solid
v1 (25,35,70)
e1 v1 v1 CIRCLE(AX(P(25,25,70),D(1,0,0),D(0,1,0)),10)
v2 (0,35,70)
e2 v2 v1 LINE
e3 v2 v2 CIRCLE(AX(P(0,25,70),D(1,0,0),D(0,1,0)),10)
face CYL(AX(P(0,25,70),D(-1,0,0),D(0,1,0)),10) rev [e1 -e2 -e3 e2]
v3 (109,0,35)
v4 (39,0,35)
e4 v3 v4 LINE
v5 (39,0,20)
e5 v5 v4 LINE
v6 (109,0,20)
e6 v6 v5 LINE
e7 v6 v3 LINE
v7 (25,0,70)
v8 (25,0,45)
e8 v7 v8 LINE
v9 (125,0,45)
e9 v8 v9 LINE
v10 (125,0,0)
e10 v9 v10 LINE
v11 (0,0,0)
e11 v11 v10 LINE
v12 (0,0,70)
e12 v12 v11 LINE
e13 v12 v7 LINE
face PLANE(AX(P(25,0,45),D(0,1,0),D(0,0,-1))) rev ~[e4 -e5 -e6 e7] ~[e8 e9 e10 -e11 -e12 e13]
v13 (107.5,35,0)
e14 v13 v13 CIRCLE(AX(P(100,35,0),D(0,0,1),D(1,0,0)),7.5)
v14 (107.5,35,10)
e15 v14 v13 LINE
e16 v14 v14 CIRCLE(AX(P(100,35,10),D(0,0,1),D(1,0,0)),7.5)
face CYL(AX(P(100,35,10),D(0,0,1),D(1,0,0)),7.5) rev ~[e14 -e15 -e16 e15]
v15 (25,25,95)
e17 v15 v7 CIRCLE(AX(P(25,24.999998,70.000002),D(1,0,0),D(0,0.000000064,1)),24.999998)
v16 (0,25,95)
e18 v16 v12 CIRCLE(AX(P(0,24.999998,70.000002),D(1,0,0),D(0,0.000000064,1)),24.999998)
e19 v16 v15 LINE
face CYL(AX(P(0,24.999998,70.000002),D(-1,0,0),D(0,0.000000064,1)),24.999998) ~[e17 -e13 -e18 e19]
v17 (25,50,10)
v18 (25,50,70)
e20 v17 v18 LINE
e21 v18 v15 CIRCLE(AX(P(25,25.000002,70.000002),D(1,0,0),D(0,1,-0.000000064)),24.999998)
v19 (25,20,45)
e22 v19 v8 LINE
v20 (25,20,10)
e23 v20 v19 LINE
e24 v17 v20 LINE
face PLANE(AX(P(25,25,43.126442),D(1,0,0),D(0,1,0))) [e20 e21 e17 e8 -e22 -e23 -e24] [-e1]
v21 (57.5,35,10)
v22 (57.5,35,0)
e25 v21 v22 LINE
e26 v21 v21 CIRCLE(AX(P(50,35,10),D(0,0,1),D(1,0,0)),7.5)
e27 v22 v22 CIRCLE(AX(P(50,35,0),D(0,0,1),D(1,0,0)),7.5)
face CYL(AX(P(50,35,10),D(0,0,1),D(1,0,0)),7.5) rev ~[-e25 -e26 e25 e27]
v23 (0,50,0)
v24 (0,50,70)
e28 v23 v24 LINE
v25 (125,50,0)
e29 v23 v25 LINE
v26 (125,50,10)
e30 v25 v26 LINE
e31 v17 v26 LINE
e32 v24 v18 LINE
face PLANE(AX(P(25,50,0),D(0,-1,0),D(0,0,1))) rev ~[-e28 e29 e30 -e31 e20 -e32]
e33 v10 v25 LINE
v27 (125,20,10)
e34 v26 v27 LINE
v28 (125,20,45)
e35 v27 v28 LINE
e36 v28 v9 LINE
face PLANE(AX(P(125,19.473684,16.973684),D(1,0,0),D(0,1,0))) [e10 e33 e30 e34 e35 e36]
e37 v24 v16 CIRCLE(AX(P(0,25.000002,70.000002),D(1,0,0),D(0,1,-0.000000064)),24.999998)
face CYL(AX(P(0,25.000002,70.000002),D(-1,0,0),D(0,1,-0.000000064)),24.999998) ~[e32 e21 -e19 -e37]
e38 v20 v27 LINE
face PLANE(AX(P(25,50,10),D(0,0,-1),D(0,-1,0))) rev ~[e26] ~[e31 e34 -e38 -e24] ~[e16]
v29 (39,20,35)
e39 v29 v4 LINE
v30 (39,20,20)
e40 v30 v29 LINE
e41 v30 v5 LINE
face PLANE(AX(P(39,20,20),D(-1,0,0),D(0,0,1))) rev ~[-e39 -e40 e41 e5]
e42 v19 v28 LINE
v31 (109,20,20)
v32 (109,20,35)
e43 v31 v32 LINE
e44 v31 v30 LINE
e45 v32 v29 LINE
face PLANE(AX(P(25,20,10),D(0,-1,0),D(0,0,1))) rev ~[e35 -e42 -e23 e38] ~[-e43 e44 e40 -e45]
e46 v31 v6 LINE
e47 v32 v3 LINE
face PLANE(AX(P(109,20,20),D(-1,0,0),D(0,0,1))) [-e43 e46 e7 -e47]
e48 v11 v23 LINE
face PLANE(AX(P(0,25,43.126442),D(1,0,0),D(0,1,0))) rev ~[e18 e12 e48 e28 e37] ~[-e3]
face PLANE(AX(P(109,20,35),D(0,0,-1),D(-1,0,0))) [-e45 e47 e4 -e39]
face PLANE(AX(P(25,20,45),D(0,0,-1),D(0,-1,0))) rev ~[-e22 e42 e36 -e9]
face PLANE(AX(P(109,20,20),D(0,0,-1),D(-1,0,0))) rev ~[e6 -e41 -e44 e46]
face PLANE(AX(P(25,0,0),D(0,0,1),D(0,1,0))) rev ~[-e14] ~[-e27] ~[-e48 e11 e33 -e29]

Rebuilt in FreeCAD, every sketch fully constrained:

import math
import FreeCAD as App
import Part
import Sketcher

V = App.Vector
Q = App.Units.Quantity

doc = App.newDocument("Part")
params = doc.addObject("Spreadsheet::Sheet", "Params")
for row, (alias, value) in enumerate([
    ("sketch1_diameter", "20 mm"),
    ("sketch1_radius", "24.999998 mm"),
    ("sketch1_height", "70 mm"),
    ("pad1_length", "25 mm"),
    ("sketch2_width", "50 mm"),
    ("sketch2_width2", "30 mm"),
    ("sketch2_height", "45 mm"),
    ("sketch2_height2", "10 mm"),
    ("pad2_length", "100 mm"),
    ("sketch3_width", "70 mm"),
    ("sketch3_height", "15 mm"),
    ("pocket1_length", "20 mm"),
    ("sketch4_diameter", "15 mm"),
    ("pocket2_length", "10 mm"),
], start=1):
    params.set(f"A{row}", alias)
    params.set(f"B{row}", "=" + value)
    params.setAlias(f"B{row}", alias)

body = doc.addObject("PartDesign::Body", "Body")

# Sketch on YZ plane
sketch1 = doc.addObject("Sketcher::SketchObject", "Sketch")
body.addObject(sketch1)
sketch1.AttachmentSupport = (doc.YZ_Plane, [""])
sketch1.MapMode = "FlatFace"
sketch1.addGeometry([
    Part.LineSegment(V(0, 70, 0), V(0, 0, 0)),  # 0
    Part.LineSegment(V(0, 0, 0), V(50, 0, 0)),  # 1
    Part.LineSegment(V(50, 0, 0), V(50, 70, 0)),  # 2
    Part.ArcOfCircle(Part.Circle(V(25, 70, 0), V(0, 0, 1), 25), math.radians(0), math.radians(90)),  # 3
    Part.ArcOfCircle(Part.Circle(V(25, 70, 0), V(0, 0, 1), 25), math.radians(90), math.radians(180)),  # 4
    Part.Circle(V(25, 70, 0), V(0, 0, 1), 10),  # 5
], False)
sketch1.addConstraint([
    Sketcher.Constraint("Coincident", 0, 2, 1, 1),
    Sketcher.Constraint("Coincident", 1, 2, 2, 1),
    Sketcher.Constraint("Tangent", 2, 2, 3, 1),
    Sketcher.Constraint("Tangent", 3, 2, 4, 1),
    Sketcher.Constraint("Tangent", 4, 2, 0, 1),
    Sketcher.Constraint("Vertical", 0),
    Sketcher.Constraint("Horizontal", 1),
    Sketcher.Constraint("Vertical", 2),
    Sketcher.Constraint("Coincident", 0, 2, -1, 1),
    Sketcher.Constraint("Coincident", 5, 3, 3, 3),
    Sketcher.Constraint("Equal", 3, 4),
    Sketcher.Constraint("Vertical", 5, 3, 3, 2),
    Sketcher.Constraint("Diameter", 5, Q("20 mm")),
    Sketcher.Constraint("Radius", 3, Q("24.999998 mm")),
    Sketcher.Constraint("DistanceY", 0, 2, 0, 1, Q("70 mm")),
])
sketch1.setExpression("Constraints[12]", "Params.sketch1_diameter")
sketch1.setExpression("Constraints[13]", "Params.sketch1_radius")
sketch1.setExpression("Constraints[14]", "Params.sketch1_height")
pad1 = doc.addObject("PartDesign::Pad", "Pad")
body.addObject(pad1)
pad1.Profile = sketch1
pad1.setExpression("Length", "Params.pad1_length")

# Sketch on YZ plane
sketch2 = doc.addObject("Sketcher::SketchObject", "Sketch001")
body.addObject(sketch2)
sketch2.AttachmentSupport = (doc.YZ_Plane, [""])
sketch2.MapMode = "FlatFace"
sketch2.AttachmentOffset = App.Placement(V(0, 0, 25), App.Rotation())
sketch2.addGeometry([
    Part.LineSegment(V(0, 45, 0), V(0, 0, 0)),  # 0
    Part.LineSegment(V(0, 0, 0), V(50, 0, 0)),  # 1
    Part.LineSegment(V(50, 0, 0), V(50, 10, 0)),  # 2
    Part.LineSegment(V(50, 10, 0), V(20, 10, 0)),  # 3
    Part.LineSegment(V(20, 10, 0), V(20, 45, 0)),  # 4
    Part.LineSegment(V(20, 45, 0), V(0, 45, 0)),  # 5
], False)
sketch2.addConstraint([
    Sketcher.Constraint("Coincident", 0, 2, 1, 1),
    Sketcher.Constraint("Coincident", 1, 2, 2, 1),
    Sketcher.Constraint("Coincident", 2, 2, 3, 1),
    Sketcher.Constraint("Coincident", 3, 2, 4, 1),
    Sketcher.Constraint("Coincident", 4, 2, 5, 1),
    Sketcher.Constraint("Coincident", 5, 2, 0, 1),
    Sketcher.Constraint("Vertical", 0),
    Sketcher.Constraint("Horizontal", 1),
    Sketcher.Constraint("Vertical", 2),
    Sketcher.Constraint("Horizontal", 3),
    Sketcher.Constraint("Vertical", 4),
    Sketcher.Constraint("Horizontal", 5),
    Sketcher.Constraint("Coincident", 0, 2, -1, 1),
    Sketcher.Constraint("DistanceX", 1, 1, 1, 2, Q("50 mm")),
    Sketcher.Constraint("DistanceX", 3, 2, 3, 1, Q("30 mm")),
    Sketcher.Constraint("DistanceY", 0, 2, 0, 1, Q("45 mm")),
    Sketcher.Constraint("DistanceY", 2, 1, 2, 2, Q("10 mm")),
])
sketch2.setExpression("Constraints[13]", "Params.sketch2_width")
sketch2.setExpression("Constraints[14]", "Params.sketch2_width2")
sketch2.setExpression("Constraints[15]", "Params.sketch2_height")
sketch2.setExpression("Constraints[16]", "Params.sketch2_height2")
pad2 = doc.addObject("PartDesign::Pad", "Pad001")
body.addObject(pad2)
pad2.Profile = sketch2
pad2.setExpression("Length", "Params.pad2_length")

# Sketch on XZ plane
sketch3 = doc.addObject("Sketcher::SketchObject", "Sketch002")
body.addObject(sketch3)
sketch3.AttachmentSupport = (doc.XZ_Plane, [""])
sketch3.MapMode = "FlatFace"
sketch3.AttachmentOffset = App.Placement(V(0, 0, -20), App.Rotation())
sketch3.addGeometry([
    Part.LineSegment(V(109, 35, 0), V(109, 20, 0)),
    Part.LineSegment(V(109, 20, 0), V(39, 20, 0)),
    Part.LineSegment(V(39, 20, 0), V(39, 35, 0)),
    Part.LineSegment(V(39, 35, 0), V(109, 35, 0)),
], False)
sketch3.addConstraint([
    Sketcher.Constraint("Coincident", 0, 2, 1, 1),
    Sketcher.Constraint("Coincident", 1, 2, 2, 1),
    Sketcher.Constraint("Coincident", 2, 2, 3, 1),
    Sketcher.Constraint("Coincident", 3, 2, 0, 1),
    Sketcher.Constraint("Vertical", 0),
    Sketcher.Constraint("Horizontal", 1),
    Sketcher.Constraint("Vertical", 2),
    Sketcher.Constraint("Horizontal", 3),
    Sketcher.Constraint("DistanceX", 1, 2, 1, 1, Q("70 mm")),
    Sketcher.Constraint("DistanceY", 0, 2, 0, 1, Q("15 mm")),
    Sketcher.Constraint("DistanceX", -1, 1, 0, 2, Q("109 mm")),
    Sketcher.Constraint("DistanceY", -1, 1, 0, 2, Q("20 mm")),
])
sketch3.setExpression("Constraints[8]", "Params.sketch3_width")
sketch3.setExpression("Constraints[9]", "Params.sketch3_height")
pocket1 = doc.addObject("PartDesign::Pocket", "Pocket")
body.addObject(pocket1)
pocket1.Profile = sketch3
pocket1.setExpression("Length", "Params.pocket1_length")
pocket1.Reversed = True

# Sketch on XY plane
sketch4 = doc.addObject("Sketcher::SketchObject", "Sketch003")
body.addObject(sketch4)
sketch4.AttachmentSupport = (doc.XY_Plane, [""])
sketch4.MapMode = "FlatFace"
sketch4.AttachmentOffset = App.Placement(V(0, 0, 10), App.Rotation())
sketch4.addGeometry([
    Part.Circle(V(100, 35, 0), V(0, 0, 1), 8),
    Part.Circle(V(50, 35, 0), V(0, 0, 1), 8),
], False)
sketch4.addConstraint([
    Sketcher.Constraint("Equal", 0, 1),
    Sketcher.Constraint("Horizontal", 0, 3, 1, 3),
    Sketcher.Constraint("Diameter", 0, Q("15 mm")),
    Sketcher.Constraint("DistanceX", -1, 1, 0, 3, Q("100 mm")),
    Sketcher.Constraint("DistanceY", -1, 1, 0, 3, Q("35 mm")),
    Sketcher.Constraint("DistanceX", -1, 1, 1, 3, Q("50 mm")),
])
sketch4.setExpression("Constraints[2]", "Params.sketch4_diameter")
pocket2 = doc.addObject("PartDesign::Pocket", "Pocket001")
body.addObject(pocket2)
pocket2.Profile = sketch4
pocket2.setExpression("Length", "Params.pocket2_length")

doc.recompute()
